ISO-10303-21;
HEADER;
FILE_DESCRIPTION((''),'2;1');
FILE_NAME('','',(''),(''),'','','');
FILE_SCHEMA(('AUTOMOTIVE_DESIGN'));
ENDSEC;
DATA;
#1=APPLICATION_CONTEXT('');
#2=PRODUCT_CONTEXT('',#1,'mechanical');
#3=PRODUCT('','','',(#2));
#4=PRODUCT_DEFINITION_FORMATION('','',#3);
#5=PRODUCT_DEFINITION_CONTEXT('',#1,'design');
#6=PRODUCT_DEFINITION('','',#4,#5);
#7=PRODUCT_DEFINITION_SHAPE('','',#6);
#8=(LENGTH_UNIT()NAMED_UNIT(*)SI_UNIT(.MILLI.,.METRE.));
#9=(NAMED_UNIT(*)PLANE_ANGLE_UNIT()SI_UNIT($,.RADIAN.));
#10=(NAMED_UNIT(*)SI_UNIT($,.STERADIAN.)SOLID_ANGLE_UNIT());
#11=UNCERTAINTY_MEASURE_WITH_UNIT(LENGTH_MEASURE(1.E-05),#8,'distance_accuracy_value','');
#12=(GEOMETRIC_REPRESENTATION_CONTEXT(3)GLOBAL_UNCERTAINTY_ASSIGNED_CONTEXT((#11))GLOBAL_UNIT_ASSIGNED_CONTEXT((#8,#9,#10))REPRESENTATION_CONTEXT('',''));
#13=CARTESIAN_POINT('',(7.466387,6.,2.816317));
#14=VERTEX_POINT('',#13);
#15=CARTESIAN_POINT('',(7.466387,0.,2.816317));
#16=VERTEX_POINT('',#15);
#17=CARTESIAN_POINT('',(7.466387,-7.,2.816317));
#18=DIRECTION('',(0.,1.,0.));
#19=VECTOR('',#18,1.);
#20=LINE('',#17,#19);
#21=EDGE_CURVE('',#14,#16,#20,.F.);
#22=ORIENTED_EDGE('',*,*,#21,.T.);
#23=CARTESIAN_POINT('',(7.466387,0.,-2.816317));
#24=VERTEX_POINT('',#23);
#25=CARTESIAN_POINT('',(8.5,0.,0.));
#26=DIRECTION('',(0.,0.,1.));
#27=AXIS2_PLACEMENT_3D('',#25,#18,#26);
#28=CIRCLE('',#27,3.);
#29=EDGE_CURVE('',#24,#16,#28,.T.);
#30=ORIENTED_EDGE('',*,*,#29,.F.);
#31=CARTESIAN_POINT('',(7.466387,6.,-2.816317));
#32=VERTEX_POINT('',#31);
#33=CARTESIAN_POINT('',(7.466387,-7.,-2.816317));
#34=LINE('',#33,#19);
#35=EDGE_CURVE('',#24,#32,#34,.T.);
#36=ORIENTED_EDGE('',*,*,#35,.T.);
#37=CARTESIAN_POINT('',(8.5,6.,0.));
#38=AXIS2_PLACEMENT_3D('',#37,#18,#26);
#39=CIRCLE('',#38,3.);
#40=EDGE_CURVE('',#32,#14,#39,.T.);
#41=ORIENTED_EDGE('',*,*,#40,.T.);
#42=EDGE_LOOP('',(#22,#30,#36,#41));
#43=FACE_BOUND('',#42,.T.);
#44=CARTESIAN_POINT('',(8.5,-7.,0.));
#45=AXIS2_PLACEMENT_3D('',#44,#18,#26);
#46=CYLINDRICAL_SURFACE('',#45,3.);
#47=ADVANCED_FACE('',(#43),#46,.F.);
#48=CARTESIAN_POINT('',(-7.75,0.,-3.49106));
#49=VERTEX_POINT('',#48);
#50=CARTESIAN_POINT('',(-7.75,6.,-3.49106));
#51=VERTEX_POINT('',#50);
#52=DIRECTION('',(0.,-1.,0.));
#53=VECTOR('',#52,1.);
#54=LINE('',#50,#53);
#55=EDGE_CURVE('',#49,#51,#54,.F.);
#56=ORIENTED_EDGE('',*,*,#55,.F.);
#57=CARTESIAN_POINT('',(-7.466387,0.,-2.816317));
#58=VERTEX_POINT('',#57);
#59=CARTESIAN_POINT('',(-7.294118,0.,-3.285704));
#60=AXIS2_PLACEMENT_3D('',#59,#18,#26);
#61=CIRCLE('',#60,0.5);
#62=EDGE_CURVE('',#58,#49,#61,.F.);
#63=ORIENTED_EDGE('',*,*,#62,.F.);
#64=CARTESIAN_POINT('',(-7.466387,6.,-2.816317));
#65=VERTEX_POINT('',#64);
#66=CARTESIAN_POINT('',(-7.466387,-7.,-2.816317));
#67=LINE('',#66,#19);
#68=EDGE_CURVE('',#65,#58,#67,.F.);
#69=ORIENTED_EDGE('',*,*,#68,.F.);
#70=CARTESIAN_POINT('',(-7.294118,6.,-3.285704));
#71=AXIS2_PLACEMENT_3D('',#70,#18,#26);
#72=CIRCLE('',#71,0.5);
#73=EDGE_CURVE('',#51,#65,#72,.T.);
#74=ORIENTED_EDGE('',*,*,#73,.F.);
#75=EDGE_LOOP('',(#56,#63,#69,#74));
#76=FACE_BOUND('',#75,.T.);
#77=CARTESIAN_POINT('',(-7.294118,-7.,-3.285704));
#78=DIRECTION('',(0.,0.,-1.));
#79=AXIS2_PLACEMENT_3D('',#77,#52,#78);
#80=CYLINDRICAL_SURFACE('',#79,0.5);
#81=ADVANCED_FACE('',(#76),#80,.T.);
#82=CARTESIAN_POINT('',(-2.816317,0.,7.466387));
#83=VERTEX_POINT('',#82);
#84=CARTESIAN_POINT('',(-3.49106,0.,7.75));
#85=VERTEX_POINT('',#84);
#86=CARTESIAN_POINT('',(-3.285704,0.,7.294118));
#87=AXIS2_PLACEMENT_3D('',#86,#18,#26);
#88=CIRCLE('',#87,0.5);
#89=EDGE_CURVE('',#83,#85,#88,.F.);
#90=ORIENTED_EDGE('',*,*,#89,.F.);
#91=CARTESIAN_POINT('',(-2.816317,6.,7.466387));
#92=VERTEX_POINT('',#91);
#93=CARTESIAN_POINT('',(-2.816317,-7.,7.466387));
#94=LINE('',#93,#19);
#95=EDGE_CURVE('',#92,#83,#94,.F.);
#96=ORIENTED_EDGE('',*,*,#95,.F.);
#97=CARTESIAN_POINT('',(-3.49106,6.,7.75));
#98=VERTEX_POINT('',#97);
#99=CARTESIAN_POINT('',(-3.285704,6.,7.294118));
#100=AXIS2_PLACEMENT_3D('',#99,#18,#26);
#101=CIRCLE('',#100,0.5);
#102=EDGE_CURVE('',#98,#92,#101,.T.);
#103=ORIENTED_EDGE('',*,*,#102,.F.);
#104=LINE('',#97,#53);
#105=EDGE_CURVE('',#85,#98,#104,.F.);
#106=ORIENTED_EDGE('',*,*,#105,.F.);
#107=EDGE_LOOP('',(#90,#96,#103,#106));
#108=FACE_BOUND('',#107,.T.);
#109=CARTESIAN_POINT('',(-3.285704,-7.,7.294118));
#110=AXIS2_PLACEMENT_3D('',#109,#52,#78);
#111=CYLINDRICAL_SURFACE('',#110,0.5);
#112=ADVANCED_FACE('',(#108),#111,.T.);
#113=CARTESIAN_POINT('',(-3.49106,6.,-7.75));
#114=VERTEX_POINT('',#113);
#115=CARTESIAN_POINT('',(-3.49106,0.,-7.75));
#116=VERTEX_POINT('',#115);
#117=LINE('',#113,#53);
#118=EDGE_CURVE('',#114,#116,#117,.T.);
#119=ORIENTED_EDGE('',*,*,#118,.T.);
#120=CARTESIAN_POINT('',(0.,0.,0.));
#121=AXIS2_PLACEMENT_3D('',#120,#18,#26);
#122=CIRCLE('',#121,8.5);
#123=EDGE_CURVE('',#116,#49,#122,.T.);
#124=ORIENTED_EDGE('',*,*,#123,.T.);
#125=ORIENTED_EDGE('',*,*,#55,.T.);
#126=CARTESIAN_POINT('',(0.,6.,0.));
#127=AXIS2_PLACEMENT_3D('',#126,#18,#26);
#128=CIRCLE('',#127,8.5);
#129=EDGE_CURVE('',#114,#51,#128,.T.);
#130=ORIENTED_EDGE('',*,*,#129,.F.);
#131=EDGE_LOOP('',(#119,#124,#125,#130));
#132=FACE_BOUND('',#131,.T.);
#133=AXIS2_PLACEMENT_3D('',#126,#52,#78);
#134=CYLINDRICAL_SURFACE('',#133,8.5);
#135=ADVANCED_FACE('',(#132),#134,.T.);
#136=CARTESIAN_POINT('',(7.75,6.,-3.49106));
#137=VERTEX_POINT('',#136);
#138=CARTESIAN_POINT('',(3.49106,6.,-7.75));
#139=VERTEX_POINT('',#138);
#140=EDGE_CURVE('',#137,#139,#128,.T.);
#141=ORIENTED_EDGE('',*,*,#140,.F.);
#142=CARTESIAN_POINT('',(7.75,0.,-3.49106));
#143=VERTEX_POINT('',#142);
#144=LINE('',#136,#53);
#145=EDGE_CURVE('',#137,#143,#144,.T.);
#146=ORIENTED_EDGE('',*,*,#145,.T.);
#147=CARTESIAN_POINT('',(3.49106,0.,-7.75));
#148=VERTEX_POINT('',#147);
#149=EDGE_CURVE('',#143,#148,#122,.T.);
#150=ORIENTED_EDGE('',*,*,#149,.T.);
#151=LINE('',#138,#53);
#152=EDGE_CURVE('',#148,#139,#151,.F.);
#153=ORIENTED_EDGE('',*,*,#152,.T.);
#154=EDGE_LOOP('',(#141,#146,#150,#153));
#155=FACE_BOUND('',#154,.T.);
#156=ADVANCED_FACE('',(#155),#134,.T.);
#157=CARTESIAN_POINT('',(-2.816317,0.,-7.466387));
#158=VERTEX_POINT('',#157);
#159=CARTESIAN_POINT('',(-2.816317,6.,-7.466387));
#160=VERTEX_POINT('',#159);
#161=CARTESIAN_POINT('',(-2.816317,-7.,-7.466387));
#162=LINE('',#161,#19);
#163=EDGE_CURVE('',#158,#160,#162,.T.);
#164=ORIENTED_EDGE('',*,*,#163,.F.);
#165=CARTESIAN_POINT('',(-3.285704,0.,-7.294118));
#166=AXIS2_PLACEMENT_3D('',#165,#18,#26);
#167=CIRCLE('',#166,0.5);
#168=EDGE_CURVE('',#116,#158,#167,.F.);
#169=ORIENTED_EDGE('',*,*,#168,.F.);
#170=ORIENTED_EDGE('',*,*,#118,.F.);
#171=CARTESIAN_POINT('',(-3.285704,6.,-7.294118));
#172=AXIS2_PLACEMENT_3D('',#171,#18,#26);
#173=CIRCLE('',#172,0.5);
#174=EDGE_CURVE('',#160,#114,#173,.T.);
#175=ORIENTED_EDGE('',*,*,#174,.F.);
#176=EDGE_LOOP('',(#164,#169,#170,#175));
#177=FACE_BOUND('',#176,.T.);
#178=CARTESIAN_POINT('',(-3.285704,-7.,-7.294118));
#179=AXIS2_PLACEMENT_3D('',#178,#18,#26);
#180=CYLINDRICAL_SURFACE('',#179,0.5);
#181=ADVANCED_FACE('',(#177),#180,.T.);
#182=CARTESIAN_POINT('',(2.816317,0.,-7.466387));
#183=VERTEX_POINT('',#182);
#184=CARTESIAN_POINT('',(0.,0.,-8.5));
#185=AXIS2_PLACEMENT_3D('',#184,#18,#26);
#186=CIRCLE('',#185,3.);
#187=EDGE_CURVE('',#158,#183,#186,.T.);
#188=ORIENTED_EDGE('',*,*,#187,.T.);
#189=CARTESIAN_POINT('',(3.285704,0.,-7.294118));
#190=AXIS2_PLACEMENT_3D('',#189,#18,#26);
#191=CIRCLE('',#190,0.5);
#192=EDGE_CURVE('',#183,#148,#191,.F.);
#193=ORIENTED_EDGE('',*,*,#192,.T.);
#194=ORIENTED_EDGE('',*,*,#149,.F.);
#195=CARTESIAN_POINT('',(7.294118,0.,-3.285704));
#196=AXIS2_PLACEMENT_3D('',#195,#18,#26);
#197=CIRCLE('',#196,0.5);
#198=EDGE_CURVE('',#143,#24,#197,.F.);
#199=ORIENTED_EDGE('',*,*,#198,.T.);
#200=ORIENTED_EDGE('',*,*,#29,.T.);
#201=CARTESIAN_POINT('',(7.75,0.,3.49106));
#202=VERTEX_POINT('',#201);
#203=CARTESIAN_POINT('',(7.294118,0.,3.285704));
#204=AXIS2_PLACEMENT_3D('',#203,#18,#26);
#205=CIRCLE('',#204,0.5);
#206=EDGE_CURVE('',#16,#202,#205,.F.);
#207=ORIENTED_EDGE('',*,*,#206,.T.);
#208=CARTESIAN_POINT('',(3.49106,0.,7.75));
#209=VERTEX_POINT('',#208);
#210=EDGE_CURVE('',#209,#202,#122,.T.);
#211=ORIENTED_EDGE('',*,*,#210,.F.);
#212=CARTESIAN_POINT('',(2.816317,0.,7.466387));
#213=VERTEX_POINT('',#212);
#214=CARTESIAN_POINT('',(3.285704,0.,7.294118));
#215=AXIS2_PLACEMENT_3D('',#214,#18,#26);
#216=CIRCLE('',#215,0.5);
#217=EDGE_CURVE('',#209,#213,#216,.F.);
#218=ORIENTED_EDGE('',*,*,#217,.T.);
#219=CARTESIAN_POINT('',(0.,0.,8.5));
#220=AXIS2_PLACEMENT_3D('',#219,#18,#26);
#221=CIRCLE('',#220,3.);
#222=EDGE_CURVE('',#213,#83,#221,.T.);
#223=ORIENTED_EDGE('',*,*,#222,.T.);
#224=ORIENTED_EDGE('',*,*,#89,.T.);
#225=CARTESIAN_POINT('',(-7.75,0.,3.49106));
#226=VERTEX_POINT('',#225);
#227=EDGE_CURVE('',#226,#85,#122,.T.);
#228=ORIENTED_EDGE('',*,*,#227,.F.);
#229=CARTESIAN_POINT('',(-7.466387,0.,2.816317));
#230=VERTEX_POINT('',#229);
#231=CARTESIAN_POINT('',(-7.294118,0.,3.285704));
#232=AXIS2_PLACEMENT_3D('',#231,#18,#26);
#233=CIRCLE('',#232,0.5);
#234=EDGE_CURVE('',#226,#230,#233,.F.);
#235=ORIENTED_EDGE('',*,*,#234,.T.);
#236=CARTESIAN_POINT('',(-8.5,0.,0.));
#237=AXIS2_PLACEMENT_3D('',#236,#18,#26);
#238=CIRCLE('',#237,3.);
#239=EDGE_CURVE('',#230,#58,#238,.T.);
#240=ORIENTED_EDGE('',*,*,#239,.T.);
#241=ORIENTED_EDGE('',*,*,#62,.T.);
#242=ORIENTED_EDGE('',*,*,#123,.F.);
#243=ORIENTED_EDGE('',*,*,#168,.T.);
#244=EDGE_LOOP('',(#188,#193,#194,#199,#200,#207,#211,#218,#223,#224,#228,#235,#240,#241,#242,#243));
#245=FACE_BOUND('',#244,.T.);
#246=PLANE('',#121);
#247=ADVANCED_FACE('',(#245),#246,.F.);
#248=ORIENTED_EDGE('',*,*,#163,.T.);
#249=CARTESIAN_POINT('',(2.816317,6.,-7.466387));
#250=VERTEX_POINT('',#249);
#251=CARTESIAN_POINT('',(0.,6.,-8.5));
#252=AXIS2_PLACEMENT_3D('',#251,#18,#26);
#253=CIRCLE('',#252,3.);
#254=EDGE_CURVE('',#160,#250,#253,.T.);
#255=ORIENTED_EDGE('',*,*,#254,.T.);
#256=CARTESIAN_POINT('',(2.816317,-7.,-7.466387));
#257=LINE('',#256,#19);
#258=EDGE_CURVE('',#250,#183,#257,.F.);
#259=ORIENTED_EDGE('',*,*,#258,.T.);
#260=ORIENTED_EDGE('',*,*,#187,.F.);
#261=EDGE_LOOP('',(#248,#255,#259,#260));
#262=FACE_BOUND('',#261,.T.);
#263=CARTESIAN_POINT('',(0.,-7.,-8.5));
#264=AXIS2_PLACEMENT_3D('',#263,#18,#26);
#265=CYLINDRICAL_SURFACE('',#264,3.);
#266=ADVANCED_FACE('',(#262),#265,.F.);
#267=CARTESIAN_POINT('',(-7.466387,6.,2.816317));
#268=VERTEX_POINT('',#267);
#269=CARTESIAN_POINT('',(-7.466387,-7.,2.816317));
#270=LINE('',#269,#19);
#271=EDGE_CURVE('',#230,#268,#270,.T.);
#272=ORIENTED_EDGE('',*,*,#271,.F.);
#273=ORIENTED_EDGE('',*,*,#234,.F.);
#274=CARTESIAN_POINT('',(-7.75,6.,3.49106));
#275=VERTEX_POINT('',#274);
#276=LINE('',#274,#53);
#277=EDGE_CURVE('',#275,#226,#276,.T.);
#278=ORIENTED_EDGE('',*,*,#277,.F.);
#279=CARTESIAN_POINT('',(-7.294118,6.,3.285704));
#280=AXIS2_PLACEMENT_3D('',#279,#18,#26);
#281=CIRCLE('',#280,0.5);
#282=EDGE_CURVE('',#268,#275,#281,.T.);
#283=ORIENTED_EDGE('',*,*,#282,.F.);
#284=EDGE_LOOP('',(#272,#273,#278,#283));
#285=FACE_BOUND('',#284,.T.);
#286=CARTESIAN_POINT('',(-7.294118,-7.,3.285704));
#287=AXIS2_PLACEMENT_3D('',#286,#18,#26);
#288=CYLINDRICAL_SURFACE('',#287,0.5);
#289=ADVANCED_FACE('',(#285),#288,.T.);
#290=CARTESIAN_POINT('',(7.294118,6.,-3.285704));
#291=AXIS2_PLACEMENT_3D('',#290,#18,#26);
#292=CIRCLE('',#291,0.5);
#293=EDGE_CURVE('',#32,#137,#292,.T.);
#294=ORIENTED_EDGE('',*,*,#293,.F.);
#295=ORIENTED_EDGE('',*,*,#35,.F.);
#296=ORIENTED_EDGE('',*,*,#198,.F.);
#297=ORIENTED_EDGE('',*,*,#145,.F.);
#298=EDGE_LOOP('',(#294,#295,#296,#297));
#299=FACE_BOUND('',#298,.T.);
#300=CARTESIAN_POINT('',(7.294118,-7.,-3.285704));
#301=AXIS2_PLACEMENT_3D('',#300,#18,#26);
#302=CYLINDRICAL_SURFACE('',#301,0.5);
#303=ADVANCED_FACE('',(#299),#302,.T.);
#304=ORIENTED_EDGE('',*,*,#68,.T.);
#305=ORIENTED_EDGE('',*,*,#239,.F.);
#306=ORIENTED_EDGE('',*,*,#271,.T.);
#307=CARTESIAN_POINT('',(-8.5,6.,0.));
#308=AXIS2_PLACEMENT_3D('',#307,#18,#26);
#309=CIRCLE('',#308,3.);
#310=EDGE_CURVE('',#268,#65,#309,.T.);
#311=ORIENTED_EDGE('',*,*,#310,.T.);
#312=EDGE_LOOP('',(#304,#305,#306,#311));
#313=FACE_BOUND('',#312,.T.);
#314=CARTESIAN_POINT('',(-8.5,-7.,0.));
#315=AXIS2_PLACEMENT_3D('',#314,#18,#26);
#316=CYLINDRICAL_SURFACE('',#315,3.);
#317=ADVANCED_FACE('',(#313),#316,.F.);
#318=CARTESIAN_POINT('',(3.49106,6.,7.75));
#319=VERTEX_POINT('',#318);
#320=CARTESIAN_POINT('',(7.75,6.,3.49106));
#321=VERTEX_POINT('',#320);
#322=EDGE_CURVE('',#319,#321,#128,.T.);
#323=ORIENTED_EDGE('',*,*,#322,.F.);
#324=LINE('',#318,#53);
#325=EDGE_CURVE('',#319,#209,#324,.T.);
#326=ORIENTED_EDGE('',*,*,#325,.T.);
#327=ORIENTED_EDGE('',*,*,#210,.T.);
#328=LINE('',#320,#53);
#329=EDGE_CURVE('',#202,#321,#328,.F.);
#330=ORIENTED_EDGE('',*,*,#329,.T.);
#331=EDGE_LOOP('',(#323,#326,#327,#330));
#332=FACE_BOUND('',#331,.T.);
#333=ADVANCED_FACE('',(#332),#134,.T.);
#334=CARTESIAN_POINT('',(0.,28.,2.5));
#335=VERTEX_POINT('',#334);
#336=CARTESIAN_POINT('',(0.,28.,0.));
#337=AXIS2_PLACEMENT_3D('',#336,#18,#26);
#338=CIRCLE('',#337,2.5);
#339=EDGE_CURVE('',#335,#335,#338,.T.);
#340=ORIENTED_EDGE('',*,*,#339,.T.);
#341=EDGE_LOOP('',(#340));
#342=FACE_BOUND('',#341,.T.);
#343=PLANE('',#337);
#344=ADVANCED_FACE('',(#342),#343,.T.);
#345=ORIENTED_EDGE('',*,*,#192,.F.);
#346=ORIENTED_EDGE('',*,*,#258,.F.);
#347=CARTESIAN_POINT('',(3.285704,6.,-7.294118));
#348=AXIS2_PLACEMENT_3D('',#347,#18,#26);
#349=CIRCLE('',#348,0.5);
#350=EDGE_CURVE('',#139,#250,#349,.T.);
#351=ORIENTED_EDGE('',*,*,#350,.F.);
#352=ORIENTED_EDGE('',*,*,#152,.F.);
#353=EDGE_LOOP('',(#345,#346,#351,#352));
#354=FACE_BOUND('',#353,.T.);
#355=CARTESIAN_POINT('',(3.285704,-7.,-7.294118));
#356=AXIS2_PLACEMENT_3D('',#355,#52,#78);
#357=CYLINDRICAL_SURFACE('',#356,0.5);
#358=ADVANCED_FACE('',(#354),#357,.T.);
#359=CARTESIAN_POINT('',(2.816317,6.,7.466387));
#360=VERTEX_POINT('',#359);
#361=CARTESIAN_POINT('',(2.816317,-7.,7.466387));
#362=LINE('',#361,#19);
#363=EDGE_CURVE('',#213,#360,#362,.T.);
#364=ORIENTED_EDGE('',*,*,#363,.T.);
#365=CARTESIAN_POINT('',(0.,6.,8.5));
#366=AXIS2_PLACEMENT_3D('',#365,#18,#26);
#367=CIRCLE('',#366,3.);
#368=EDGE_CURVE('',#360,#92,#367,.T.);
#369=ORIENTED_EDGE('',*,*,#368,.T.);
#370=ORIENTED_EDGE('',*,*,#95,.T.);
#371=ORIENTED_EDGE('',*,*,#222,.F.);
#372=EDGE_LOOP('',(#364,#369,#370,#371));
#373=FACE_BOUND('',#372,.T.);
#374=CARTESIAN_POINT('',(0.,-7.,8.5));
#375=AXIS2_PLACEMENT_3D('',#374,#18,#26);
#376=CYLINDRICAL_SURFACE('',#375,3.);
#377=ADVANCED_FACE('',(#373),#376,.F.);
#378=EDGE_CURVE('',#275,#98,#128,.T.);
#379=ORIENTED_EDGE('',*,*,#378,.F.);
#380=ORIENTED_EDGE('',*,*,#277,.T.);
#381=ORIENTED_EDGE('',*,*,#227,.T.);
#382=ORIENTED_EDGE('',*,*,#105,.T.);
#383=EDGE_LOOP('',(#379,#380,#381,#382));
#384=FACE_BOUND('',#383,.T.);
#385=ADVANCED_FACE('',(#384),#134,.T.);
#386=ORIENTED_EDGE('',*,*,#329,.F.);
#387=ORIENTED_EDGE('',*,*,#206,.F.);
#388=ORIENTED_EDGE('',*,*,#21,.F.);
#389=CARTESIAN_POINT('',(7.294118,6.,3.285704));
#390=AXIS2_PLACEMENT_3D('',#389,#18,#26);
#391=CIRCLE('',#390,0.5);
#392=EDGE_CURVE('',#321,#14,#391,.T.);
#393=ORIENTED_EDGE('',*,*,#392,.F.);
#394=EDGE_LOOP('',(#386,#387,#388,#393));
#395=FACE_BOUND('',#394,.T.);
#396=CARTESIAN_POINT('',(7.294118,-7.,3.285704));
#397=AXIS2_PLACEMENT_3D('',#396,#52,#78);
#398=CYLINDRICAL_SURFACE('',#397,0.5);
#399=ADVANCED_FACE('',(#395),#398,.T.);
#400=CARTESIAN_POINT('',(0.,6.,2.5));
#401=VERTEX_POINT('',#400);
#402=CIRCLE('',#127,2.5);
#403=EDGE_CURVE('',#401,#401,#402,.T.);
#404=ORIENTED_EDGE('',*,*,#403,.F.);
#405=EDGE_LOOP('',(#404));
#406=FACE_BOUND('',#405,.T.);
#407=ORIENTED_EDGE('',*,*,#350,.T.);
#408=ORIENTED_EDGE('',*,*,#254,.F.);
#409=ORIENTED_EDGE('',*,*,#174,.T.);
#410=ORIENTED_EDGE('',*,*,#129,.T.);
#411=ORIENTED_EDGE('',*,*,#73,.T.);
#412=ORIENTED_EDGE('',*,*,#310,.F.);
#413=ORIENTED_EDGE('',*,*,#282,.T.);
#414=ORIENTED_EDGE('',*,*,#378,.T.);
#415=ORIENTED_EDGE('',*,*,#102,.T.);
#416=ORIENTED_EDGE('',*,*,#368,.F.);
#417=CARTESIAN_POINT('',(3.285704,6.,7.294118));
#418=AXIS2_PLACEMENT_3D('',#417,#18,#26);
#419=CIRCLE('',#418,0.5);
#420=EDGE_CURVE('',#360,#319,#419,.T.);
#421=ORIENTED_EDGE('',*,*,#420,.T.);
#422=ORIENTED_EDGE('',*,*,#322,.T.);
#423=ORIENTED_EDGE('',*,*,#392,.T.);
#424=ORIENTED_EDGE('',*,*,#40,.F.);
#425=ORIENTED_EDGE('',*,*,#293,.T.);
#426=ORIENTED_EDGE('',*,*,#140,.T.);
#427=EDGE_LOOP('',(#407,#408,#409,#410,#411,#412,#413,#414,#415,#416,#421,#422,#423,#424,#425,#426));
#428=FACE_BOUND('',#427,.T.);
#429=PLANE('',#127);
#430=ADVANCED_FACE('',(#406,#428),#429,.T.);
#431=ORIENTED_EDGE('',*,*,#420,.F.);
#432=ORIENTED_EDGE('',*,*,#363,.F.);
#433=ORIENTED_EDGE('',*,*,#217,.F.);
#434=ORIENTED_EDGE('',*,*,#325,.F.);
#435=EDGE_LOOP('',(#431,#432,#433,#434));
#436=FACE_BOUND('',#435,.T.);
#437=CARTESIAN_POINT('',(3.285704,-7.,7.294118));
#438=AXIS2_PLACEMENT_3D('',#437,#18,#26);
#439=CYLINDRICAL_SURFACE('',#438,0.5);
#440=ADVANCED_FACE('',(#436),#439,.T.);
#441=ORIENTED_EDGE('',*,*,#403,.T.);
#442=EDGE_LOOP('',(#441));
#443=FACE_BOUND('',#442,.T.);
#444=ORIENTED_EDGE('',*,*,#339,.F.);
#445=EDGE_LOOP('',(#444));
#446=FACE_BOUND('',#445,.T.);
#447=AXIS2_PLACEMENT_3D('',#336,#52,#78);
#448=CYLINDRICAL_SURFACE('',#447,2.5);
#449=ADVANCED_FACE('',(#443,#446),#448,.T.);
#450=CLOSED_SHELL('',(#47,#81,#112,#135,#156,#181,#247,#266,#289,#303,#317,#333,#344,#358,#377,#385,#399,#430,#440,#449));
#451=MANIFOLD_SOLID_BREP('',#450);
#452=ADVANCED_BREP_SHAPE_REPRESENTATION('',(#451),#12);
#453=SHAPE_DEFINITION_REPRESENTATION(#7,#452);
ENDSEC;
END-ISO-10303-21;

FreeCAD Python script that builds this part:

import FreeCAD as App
import Part
import Sketcher

V = App.Vector


def edges_at(feature, points):
    """Names of the edges that pass closest to the given points."""
    edges = feature.Shape.Edges
    near = lambda p: min(range(len(edges)), key=lambda i: edges[i].distToShape(Part.Vertex(*p))[0])
    return sorted({f"Edge{near(p) + 1}" for p in points})

doc = App.newDocument("Part")
body = doc.addObject("PartDesign::Body", "Body")

# Sketch on XZ plane
sketch1 = doc.addObject("Sketcher::SketchObject", "Sketch")
body.addObject(sketch1)
sketch1.AttachmentSupport = (doc.XZ_Plane, [""])
sketch1.MapMode = "FlatFace"
sketch1.addGeometry(Part.Circle(V(0, 0, 0), V(0, 0, 1), 8), False)
sketch1.addConstraint([
    Sketcher.Constraint("Coincident", 0, 3, -1, 1),
    Sketcher.Constraint("Diameter", 0, 17.0),
])
pad1 = doc.addObject("PartDesign::Pad", "Pad")
body.addObject(pad1)
pad1.Profile = sketch1
pad1.Length = 6
pad1.Reversed = True

# Sketch on XZ plane
sketch2 = doc.addObject("Sketcher::SketchObject", "Sketch001")
body.addObject(sketch2)
sketch2.AttachmentSupport = (doc.XZ_Plane, [""])
sketch2.MapMode = "FlatFace"
sketch2.AttachmentOffset = App.Placement(V(0, 0, -6), App.Rotation())
sketch2.addGeometry(Part.Circle(V(0, 0, 0), V(0, 0, 1), 2.5), False)
sketch2.addConstraint([
    Sketcher.Constraint("Coincident", 0, 3, -1, 1),
    Sketcher.Constraint("Diameter", 0, 5.0),
])
pad2 = doc.addObject("PartDesign::Pad", "Pad001")
body.addObject(pad2)
pad2.Profile = sketch2
pad2.Length = 22
pad2.Reversed = True

# Sketch on XZ plane
sketch3 = doc.addObject("Sketcher::SketchObject", "Sketch002")
body.addObject(sketch3)
sketch3.AttachmentSupport = (doc.XZ_Plane, [""])
sketch3.MapMode = "FlatFace"
sketch3.AttachmentOffset = App.Placement(V(0, 0, -6), App.Rotation())
sketch3.addGeometry([
    Part.Circle(V(-8.5, 0, 0), V(0, 0, 1), 3),
    Part.Circle(V(0, -8.5, 0), V(0, 0, 1), 3),
    Part.Circle(V(8.5, 0, 0), V(0, 0, 1), 3),
    Part.Circle(V(0, 8.5, 0), V(0, 0, 1), 3),
], False)
sketch3.addConstraint([
    Sketcher.Constraint("Equal", 0, 1),
    Sketcher.Constraint("Equal", 1, 2),
    Sketcher.Constraint("Equal", 2, 3),
    Sketcher.Constraint("Symmetric", 0, 3, 2, 3, -1, 1),
    Sketcher.Constraint("Symmetric", 1, 3, 3, 3, -1, 1),
    Sketcher.Constraint("PointOnObject", 0, 3, -1),
    Sketcher.Constraint("PointOnObject", 1, 3, -2),
    Sketcher.Constraint("Diameter", 0, 6.0),
    Sketcher.Constraint("DistanceX", 0, 3, 2, 3, 17.0),
    Sketcher.Constraint("DistanceY", 1, 3, 3, 3, 17.0),
])
pocket1 = doc.addObject("PartDesign::Pocket", "Pocket")
body.addObject(pocket1)
pocket1.Profile = sketch3
pocket1.Length = 13
pocket1.Reversed = True
doc.recompute()

fillet = doc.addObject("PartDesign::Fillet", "Fillet")
body.addObject(fillet)
fillet.Base = (pocket1, edges_at(pocket1, [
    (-7.971, 3, -2.953),
    (-7.971, 3, 2.953),
    (2.953, 3, -7.971),
    (-2.953, 3, -7.971),
    (7.971, 3, 2.953),
    (7.971, 3, -2.953),
    (-2.953, 3, 7.971),
    (2.953, 3, 7.971),
]))
fillet.Radius = 0.5

doc.recompute()
